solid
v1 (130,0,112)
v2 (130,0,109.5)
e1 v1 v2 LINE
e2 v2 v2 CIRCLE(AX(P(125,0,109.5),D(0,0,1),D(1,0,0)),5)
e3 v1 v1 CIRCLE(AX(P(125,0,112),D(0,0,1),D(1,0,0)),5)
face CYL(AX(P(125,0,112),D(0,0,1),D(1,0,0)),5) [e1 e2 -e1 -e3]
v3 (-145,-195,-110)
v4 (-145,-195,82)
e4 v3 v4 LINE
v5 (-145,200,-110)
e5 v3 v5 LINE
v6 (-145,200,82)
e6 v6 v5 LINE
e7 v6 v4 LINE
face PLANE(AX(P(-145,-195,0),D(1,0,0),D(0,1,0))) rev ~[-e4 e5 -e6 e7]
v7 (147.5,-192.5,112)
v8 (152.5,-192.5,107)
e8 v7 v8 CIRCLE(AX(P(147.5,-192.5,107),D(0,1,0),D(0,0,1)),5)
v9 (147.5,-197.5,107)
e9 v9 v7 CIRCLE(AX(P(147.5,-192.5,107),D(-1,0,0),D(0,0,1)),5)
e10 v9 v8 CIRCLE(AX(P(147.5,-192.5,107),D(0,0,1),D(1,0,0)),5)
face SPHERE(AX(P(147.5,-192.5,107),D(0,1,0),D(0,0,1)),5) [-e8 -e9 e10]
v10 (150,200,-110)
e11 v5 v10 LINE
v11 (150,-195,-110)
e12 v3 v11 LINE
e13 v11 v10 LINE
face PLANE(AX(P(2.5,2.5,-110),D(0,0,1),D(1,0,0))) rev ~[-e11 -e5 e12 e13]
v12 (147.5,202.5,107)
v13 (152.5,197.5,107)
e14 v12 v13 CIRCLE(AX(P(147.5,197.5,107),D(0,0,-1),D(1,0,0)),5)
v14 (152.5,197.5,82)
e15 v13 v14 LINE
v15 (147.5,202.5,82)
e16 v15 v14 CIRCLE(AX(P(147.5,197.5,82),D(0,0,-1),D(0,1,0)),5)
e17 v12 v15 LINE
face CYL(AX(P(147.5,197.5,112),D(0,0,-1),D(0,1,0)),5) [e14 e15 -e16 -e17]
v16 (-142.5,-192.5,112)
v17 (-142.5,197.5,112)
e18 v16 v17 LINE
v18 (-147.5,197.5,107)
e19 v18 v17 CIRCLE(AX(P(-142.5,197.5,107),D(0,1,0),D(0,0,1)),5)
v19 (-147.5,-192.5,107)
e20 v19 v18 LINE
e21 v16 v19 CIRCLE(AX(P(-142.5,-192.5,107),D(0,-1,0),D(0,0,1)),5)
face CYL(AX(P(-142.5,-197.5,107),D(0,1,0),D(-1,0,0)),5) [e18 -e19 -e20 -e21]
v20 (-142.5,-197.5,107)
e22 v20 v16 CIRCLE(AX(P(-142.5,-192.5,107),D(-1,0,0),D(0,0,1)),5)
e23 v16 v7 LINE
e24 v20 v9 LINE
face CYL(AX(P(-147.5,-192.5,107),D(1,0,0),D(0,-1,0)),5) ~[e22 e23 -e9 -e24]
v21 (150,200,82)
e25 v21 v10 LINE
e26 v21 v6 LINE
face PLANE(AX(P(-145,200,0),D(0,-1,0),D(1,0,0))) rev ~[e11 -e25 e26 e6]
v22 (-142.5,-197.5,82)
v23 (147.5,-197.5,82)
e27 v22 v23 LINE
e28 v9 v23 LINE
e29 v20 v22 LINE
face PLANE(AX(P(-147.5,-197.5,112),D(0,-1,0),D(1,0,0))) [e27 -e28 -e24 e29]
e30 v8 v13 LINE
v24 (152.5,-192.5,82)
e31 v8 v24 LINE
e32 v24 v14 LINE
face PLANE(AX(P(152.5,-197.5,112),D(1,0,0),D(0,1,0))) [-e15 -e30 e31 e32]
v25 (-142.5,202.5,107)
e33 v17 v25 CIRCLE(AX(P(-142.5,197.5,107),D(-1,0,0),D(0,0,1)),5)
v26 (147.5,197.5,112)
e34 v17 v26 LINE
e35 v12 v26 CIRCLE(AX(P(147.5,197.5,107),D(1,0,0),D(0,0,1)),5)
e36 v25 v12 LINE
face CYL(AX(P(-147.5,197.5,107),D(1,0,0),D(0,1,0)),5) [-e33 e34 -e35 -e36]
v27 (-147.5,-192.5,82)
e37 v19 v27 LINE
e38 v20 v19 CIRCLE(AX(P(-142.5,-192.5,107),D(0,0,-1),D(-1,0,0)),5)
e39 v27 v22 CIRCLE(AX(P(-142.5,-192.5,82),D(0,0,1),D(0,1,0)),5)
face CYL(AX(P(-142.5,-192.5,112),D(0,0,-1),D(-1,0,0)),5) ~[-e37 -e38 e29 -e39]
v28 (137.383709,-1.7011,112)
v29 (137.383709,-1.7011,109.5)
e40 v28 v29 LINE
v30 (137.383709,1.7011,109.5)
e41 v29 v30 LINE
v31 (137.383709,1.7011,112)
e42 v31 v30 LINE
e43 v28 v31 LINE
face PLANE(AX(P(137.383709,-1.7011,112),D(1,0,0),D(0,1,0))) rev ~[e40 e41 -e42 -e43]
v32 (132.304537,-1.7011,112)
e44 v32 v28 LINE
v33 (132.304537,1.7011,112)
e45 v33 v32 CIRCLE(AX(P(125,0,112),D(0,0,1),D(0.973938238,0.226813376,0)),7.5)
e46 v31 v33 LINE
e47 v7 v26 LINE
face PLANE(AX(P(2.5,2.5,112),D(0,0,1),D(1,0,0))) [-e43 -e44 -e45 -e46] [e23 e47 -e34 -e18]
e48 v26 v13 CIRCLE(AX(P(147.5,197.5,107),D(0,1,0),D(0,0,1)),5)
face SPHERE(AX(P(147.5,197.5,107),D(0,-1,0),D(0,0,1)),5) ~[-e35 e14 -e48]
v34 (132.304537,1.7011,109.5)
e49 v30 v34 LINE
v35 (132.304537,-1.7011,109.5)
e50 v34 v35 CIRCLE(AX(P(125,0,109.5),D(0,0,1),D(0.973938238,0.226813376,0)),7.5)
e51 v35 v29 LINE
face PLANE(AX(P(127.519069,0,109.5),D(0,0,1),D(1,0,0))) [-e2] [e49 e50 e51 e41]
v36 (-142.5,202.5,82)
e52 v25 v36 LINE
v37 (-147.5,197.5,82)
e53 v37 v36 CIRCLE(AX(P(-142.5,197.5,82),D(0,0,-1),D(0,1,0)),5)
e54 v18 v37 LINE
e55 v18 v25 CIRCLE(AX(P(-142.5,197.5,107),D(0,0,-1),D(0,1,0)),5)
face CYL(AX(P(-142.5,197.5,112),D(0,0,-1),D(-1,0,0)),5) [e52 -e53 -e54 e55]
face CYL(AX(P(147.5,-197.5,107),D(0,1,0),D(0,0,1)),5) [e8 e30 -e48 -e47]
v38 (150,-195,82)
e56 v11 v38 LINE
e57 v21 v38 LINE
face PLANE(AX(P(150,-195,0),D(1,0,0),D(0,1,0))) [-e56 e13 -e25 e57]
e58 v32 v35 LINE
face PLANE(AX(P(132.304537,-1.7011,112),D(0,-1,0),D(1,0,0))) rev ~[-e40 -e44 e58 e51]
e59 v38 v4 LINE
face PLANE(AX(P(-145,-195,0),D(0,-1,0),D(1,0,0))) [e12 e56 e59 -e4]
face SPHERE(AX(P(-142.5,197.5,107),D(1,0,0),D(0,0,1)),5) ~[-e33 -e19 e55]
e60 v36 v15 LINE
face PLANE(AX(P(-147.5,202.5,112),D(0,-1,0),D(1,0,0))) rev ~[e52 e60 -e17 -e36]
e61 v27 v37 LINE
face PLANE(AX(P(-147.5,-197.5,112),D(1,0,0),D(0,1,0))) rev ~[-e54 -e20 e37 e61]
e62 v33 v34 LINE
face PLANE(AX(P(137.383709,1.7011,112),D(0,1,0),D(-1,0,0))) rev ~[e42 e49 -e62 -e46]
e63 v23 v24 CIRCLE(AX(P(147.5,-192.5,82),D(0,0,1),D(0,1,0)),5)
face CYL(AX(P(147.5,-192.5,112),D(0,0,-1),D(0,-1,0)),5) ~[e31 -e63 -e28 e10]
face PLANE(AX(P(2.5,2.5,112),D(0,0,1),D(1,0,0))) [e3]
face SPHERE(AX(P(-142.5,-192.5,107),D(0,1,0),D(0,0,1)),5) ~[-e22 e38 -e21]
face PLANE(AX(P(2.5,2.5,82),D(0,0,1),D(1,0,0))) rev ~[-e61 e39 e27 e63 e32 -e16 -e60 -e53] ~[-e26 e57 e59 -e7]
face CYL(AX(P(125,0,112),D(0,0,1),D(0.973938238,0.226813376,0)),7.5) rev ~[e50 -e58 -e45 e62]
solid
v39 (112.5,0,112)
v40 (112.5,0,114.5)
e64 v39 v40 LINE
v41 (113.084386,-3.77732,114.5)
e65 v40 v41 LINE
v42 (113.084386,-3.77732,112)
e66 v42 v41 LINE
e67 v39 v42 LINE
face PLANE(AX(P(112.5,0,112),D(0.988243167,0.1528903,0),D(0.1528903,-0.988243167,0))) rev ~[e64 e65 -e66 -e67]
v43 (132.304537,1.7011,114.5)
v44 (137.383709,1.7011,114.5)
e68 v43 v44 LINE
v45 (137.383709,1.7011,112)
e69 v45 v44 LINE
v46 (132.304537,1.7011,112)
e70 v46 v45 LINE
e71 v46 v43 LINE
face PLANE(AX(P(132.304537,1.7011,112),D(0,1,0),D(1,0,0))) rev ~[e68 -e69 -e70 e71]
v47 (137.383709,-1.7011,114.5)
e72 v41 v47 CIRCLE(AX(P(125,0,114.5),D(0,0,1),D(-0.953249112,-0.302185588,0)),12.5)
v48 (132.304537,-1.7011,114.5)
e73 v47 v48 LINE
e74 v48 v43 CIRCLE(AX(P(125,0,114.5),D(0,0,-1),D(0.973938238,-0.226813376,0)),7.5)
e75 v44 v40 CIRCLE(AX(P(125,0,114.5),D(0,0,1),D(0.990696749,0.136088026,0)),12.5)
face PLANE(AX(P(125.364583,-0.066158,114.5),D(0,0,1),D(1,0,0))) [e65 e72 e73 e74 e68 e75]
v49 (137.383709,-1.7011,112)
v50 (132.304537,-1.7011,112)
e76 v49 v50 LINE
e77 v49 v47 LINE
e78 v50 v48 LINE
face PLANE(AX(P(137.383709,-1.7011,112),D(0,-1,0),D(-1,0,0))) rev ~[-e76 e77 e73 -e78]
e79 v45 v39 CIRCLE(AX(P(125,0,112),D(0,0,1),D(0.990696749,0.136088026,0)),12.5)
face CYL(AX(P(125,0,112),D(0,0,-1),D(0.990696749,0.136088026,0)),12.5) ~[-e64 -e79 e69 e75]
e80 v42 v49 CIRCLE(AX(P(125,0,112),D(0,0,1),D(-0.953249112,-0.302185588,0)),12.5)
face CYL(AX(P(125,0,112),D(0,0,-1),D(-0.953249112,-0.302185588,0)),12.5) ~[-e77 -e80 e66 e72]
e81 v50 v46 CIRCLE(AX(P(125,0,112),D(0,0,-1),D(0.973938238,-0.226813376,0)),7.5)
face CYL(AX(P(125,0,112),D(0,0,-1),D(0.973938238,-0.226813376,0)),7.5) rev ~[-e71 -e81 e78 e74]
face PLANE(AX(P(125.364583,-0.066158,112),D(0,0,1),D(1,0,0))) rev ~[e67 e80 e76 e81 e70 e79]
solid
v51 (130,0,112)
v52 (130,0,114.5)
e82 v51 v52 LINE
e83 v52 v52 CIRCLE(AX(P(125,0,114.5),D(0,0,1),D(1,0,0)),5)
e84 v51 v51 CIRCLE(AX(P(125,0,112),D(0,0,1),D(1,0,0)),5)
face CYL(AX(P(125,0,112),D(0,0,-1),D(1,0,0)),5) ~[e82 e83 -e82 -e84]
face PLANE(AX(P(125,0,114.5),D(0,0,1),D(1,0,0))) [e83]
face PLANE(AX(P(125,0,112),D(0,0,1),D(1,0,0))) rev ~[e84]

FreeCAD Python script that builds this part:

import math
import FreeCAD as App
import Part
import Sketcher
from FreeCAD import Vector
Q = App.Units.Quantity


def edges_at(feature, points):
    """Names of the edges that pass closest to the given points."""
    edges = feature.Shape.Edges
    near = lambda p: min(range(len(edges)), key=lambda i: edges[i].distToShape(Part.Vertex(*p))[0])
    return sorted({f"Edge{near(p) + 1}" for p in points})

doc = App.newDocument("Part")
body = doc.addObject("PartDesign::Body", "Body")

# Sketch on XY plane
sketch1 = body.newObject("Sketcher::SketchObject", "Sketch")
sketch1.AttachmentSupport = (doc.getObject("XY_Plane"), [""])
sketch1.MapMode = "FlatFace"
sketch1.addGeometry(Part.LineSegment(Vector(-145, 200, 0), Vector(-145, -195, 0)), False)
sketch1.addGeometry(Part.LineSegment(Vector(-145, -195, 0), Vector(150, -195, 0)), False)
sketch1.addGeometry(Part.LineSegment(Vector(150, -195, 0), Vector(150, 200, 0)), False)
sketch1.addGeometry(Part.LineSegment(Vector(150, 200, 0), Vector(-145, 200, 0)), False)
sketch1.addConstraint(Sketcher.Constraint("Coincident", 0, 2, 1, 1))
sketch1.addConstraint(Sketcher.Constraint("Coincident", 1, 2, 2, 1))
sketch1.addConstraint(Sketcher.Constraint("Coincident", 2, 2, 3, 1))
sketch1.addConstraint(Sketcher.Constraint("Coincident", 3, 2, 0, 1))
sketch1.addConstraint(Sketcher.Constraint("Vertical", 0))
sketch1.addConstraint(Sketcher.Constraint("Horizontal", 1))
sketch1.addConstraint(Sketcher.Constraint("Vertical", 2))
sketch1.addConstraint(Sketcher.Constraint("Horizontal", 3))
sketch1.addConstraint(Sketcher.Constraint("DistanceX", 1, 1, 1, 2, Q("295 mm")))
sketch1.addConstraint(Sketcher.Constraint("DistanceY", 0, 2, 0, 1, Q("395 mm")))
sketch1.addConstraint(Sketcher.Constraint("DistanceX", 0, 2, -1, 1, Q("145 mm")))
sketch1.addConstraint(Sketcher.Constraint("DistanceY", 0, 2, -1, 1, Q("195 mm")))
pad1 = body.newObject("PartDesign::Pad", "Pad")
pad1.Profile = sketch1
pad1.Length = 220
pad1.Midplane = True

# Sketch on XY plane
sketch2 = body.newObject("Sketcher::SketchObject", "Sketch001")
sketch2.AttachmentSupport = (doc.getObject("XY_Plane"), [""])
sketch2.MapMode = "FlatFace"
sketch2.AttachmentOffset = App.Placement(Vector(0, 0, 112), App.Rotation())
sketch2.addGeometry(Part.LineSegment(Vector(-147.5, 202.5, 0), Vector(-147.5, -197.5, 0)), False)
sketch2.addGeometry(Part.LineSegment(Vector(-147.5, -197.5, 0), Vector(152.5, -197.5, 0)), False)
sketch2.addGeometry(Part.LineSegment(Vector(152.5, -197.5, 0), Vector(152.5, 202.5, 0)), False)
sketch2.addGeometry(Part.LineSegment(Vector(152.5, 202.5, 0), Vector(-147.5, 202.5, 0)), False)
sketch2.addConstraint(Sketcher.Constraint("Coincident", 0, 2, 1, 1))
sketch2.addConstraint(Sketcher.Constraint("Coincident", 1, 2, 2, 1))
sketch2.addConstraint(Sketcher.Constraint("Coincident", 2, 2, 3, 1))
sketch2.addConstraint(Sketcher.Constraint("Coincident", 3, 2, 0, 1))
sketch2.addConstraint(Sketcher.Constraint("Vertical", 0))
sketch2.addConstraint(Sketcher.Constraint("Horizontal", 1))
sketch2.addConstraint(Sketcher.Constraint("Vertical", 2))
sketch2.addConstraint(Sketcher.Constraint("Horizontal", 3))
sketch2.addConstraint(Sketcher.Constraint("DistanceX", 1, 1, 1, 2, Q("300 mm")))
sketch2.addConstraint(Sketcher.Constraint("DistanceY", 0, 2, 0, 1, Q("400 mm")))
sketch2.addConstraint(Sketcher.Constraint("DistanceX", 0, 2, -1, 1, Q("147.5 mm")))
sketch2.addConstraint(Sketcher.Constraint("DistanceY", 0, 2, -1, 1, Q("197.5 mm")))
pad2 = body.newObject("PartDesign::Pad", "Pad001")
pad2.Profile = sketch2
pad2.Length = 30
pad2.Reversed = True
doc.recompute()

fillet = body.newObject("PartDesign::Fillet", "Fillet")
fillet.Base = (pad2, edges_at(pad2, [
    (152.5, 2.5, 112),
    (2.5, 202.5, 112),
    (-147.5, 2.5, 112),
    (2.5, -197.5, 112),
    (152.5, 202.5, 97),
    (-147.5, 202.5, 97),
    (152.5, -197.5, 97),
    (-147.5, -197.5, 97),
]))
fillet.Radius = 5

# Sketch on XY plane
sketch3 = body.newObject("Sketcher::SketchObject", "Sketch002")
sketch3.AttachmentSupport = (doc.getObject("XY_Plane"), [""])
sketch3.MapMode = "FlatFace"
sketch3.AttachmentOffset = App.Placement(Vector(0, 0, 112), App.Rotation())
sketch3.addGeometry(Part.LineSegment(Vector(137.383709, 1.7011, 0), Vector(132.304537, 1.7011, 0)), False)
sketch3.addGeometry(Part.ArcOfCircle(Part.Circle(Vector(125, 0, 0), Vector(0, 0, 1), 7.5), math.radians(13.109534), math.radians(346.890466)), False)
sketch3.addGeometry(Part.LineSegment(Vector(132.304537, -1.7011, 0), Vector(137.383709, -1.7011, 0)), False)
sketch3.addGeometry(Part.LineSegment(Vector(137.383709, -1.7011, 0), Vector(137.383709, 1.7011, 0)), False)
sketch3.addGeometry(Part.Circle(Vector(125, 0, 0), Vector(0, 0, 1), 5), False)
sketch3.addConstraint(Sketcher.Constraint("Coincident", 0, 2, 1, 1))
sketch3.addConstraint(Sketcher.Constraint("Coincident", 1, 2, 2, 1))
sketch3.addConstraint(Sketcher.Constraint("Coincident", 2, 2, 3, 1))
sketch3.addConstraint(Sketcher.Constraint("Coincident", 3, 2, 0, 1))
sketch3.addConstraint(Sketcher.Constraint("Horizontal", 0))
sketch3.addConstraint(Sketcher.Constraint("Horizontal", 2))
sketch3.addConstraint(Sketcher.Constraint("Vertical", 3))
sketch3.addConstraint(Sketcher.Constraint("Coincident", 4, 3, 1, 3))
sketch3.addConstraint(Sketcher.Constraint("Symmetric", 0, 2, 1, 2, -1))
sketch3.addConstraint(Sketcher.Constraint("Diameter", 4, Q("10 mm")))
sketch3.addConstraint(Sketcher.Constraint("Radius", 1, Q("7.5 mm")))
sketch3.addConstraint(Sketcher.Constraint("DistanceX", -1, 1, 1, 3, Q("125 mm")))
sketch3.addConstraint(Sketcher.Constraint("DistanceY", 3, 1, 3, 2, Q("3.402201 mm")))
sketch3.addConstraint(Sketcher.Constraint("DistanceX", 0, 2, 0, 1, Q("5.079173 mm")))
pocket1 = body.newObject("PartDesign::Pocket", "Pocket")
pocket1.Profile = sketch3
pocket1.Length = 2.5
body2 = doc.addObject("PartDesign::Body", "Body001")

# Sketch on XY plane
sketch4 = body2.newObject("Sketcher::SketchObject", "Sketch003")
sketch4.AttachmentSupport = (doc.getObject("XY_Plane001"), [""])
sketch4.MapMode = "FlatFace"
sketch4.AttachmentOffset = App.Placement(Vector(0, 0, 112), App.Rotation())
sketch4.addGeometry(Part.LineSegment(Vector(132.304537, 1.7011, 0), Vector(137.383709, 1.7011, 0)), False)
sketch4.addGeometry(Part.ArcOfCircle(Part.Circle(Vector(125, 0, 0), Vector(0, 0, 1), 12.5), math.radians(7.82154), math.radians(180)), False)
sketch4.addGeometry(Part.LineSegment(Vector(112.5, 0, 0), Vector(113.084386, -3.77732, 0)), False)
sketch4.addGeometry(Part.ArcOfCircle(Part.Circle(Vector(125, 0, 0), Vector(0, 0, 1), 12.5), math.radians(-162.411078), math.radians(-7.82154)), False)
sketch4.addGeometry(Part.LineSegment(Vector(137.383709, -1.7011, 0), Vector(132.304537, -1.7011, 0)), False)
sketch4.addGeometry(Part.ArcOfCircle(Part.Circle(Vector(125, 0, 0), Vector(0, 0, 1), 7.5), math.radians(13.109534), math.radians(346.890466)), False)
sketch4.addConstraint(Sketcher.Constraint("Coincident", 0, 2, 1, 1))
sketch4.addConstraint(Sketcher.Constraint("Coincident", 1, 2, 2, 1))
sketch4.addConstraint(Sketcher.Constraint("Coincident", 2, 2, 3, 1))
sketch4.addConstraint(Sketcher.Constraint("Coincident", 3, 2, 4, 1))
sketch4.addConstraint(Sketcher.Constraint("Coincident", 4, 2, 5, 2))
sketch4.addConstraint(Sketcher.Constraint("Coincident", 5, 1, 0, 1))
sketch4.addConstraint(Sketcher.Constraint("Horizontal", 0))
sketch4.addConstraint(Sketcher.Constraint("Horizontal", 4))
sketch4.addConstraint(Sketcher.Constraint("Coincident", 3, 3, 1, 3))
sketch4.addConstraint(Sketcher.Constraint("Coincident", 5, 3, 1, 3))
sketch4.addConstraint(Sketcher.Constraint("Equal", 1, 3))
sketch4.addConstraint(Sketcher.Constraint("Symmetric", 0, 2, 3, 2, -1))
sketch4.addConstraint(Sketcher.Constraint("PointOnObject", 1, 2, -1))
sketch4.addConstraint(Sketcher.Constraint("Radius", 1, Q("12.5 mm")))
sketch4.addConstraint(Sketcher.Constraint("Radius", 5, Q("7.5 mm")))
sketch4.addConstraint(Sketcher.Constraint("DistanceX", -1, 1, 1, 3, Q("125 mm")))
sketch4.addConstraint(Sketcher.Constraint("DistanceY", -1, 1, 0, 2, Q("1.7011 mm")))
sketch4.addConstraint(Sketcher.Constraint("DistanceY", 2, 2, -1, 1, Q("3.77732 mm")))
pad3 = body2.newObject("PartDesign::Pad", "Pad002")
pad3.Profile = sketch4
pad3.Length = 2.5
body3 = doc.addObject("PartDesign::Body", "Body002")

# Sketch on XY plane
sketch5 = body3.newObject("Sketcher::SketchObject", "Sketch004")
sketch5.AttachmentSupport = (doc.getObject("XY_Plane002"), [""])
sketch5.MapMode = "FlatFace"
sketch5.AttachmentOffset = App.Placement(Vector(0, 0, 112), App.Rotation())
sketch5.addGeometry(Part.Circle(Vector(125, 0, 0), Vector(0, 0, 1), 5), False)
sketch5.addConstraint(Sketcher.Constraint("PointOnObject", 0, 3, -1))
sketch5.addConstraint(Sketcher.Constraint("Diameter", 0, Q("10 mm")))
sketch5.addConstraint(Sketcher.Constraint("DistanceX", -1, 1, 0, 3, Q("125 mm")))
pad4 = body3.newObject("PartDesign::Pad", "Pad003")
pad4.Profile = sketch5
pad4.Length = 2.5

doc.recompute()
